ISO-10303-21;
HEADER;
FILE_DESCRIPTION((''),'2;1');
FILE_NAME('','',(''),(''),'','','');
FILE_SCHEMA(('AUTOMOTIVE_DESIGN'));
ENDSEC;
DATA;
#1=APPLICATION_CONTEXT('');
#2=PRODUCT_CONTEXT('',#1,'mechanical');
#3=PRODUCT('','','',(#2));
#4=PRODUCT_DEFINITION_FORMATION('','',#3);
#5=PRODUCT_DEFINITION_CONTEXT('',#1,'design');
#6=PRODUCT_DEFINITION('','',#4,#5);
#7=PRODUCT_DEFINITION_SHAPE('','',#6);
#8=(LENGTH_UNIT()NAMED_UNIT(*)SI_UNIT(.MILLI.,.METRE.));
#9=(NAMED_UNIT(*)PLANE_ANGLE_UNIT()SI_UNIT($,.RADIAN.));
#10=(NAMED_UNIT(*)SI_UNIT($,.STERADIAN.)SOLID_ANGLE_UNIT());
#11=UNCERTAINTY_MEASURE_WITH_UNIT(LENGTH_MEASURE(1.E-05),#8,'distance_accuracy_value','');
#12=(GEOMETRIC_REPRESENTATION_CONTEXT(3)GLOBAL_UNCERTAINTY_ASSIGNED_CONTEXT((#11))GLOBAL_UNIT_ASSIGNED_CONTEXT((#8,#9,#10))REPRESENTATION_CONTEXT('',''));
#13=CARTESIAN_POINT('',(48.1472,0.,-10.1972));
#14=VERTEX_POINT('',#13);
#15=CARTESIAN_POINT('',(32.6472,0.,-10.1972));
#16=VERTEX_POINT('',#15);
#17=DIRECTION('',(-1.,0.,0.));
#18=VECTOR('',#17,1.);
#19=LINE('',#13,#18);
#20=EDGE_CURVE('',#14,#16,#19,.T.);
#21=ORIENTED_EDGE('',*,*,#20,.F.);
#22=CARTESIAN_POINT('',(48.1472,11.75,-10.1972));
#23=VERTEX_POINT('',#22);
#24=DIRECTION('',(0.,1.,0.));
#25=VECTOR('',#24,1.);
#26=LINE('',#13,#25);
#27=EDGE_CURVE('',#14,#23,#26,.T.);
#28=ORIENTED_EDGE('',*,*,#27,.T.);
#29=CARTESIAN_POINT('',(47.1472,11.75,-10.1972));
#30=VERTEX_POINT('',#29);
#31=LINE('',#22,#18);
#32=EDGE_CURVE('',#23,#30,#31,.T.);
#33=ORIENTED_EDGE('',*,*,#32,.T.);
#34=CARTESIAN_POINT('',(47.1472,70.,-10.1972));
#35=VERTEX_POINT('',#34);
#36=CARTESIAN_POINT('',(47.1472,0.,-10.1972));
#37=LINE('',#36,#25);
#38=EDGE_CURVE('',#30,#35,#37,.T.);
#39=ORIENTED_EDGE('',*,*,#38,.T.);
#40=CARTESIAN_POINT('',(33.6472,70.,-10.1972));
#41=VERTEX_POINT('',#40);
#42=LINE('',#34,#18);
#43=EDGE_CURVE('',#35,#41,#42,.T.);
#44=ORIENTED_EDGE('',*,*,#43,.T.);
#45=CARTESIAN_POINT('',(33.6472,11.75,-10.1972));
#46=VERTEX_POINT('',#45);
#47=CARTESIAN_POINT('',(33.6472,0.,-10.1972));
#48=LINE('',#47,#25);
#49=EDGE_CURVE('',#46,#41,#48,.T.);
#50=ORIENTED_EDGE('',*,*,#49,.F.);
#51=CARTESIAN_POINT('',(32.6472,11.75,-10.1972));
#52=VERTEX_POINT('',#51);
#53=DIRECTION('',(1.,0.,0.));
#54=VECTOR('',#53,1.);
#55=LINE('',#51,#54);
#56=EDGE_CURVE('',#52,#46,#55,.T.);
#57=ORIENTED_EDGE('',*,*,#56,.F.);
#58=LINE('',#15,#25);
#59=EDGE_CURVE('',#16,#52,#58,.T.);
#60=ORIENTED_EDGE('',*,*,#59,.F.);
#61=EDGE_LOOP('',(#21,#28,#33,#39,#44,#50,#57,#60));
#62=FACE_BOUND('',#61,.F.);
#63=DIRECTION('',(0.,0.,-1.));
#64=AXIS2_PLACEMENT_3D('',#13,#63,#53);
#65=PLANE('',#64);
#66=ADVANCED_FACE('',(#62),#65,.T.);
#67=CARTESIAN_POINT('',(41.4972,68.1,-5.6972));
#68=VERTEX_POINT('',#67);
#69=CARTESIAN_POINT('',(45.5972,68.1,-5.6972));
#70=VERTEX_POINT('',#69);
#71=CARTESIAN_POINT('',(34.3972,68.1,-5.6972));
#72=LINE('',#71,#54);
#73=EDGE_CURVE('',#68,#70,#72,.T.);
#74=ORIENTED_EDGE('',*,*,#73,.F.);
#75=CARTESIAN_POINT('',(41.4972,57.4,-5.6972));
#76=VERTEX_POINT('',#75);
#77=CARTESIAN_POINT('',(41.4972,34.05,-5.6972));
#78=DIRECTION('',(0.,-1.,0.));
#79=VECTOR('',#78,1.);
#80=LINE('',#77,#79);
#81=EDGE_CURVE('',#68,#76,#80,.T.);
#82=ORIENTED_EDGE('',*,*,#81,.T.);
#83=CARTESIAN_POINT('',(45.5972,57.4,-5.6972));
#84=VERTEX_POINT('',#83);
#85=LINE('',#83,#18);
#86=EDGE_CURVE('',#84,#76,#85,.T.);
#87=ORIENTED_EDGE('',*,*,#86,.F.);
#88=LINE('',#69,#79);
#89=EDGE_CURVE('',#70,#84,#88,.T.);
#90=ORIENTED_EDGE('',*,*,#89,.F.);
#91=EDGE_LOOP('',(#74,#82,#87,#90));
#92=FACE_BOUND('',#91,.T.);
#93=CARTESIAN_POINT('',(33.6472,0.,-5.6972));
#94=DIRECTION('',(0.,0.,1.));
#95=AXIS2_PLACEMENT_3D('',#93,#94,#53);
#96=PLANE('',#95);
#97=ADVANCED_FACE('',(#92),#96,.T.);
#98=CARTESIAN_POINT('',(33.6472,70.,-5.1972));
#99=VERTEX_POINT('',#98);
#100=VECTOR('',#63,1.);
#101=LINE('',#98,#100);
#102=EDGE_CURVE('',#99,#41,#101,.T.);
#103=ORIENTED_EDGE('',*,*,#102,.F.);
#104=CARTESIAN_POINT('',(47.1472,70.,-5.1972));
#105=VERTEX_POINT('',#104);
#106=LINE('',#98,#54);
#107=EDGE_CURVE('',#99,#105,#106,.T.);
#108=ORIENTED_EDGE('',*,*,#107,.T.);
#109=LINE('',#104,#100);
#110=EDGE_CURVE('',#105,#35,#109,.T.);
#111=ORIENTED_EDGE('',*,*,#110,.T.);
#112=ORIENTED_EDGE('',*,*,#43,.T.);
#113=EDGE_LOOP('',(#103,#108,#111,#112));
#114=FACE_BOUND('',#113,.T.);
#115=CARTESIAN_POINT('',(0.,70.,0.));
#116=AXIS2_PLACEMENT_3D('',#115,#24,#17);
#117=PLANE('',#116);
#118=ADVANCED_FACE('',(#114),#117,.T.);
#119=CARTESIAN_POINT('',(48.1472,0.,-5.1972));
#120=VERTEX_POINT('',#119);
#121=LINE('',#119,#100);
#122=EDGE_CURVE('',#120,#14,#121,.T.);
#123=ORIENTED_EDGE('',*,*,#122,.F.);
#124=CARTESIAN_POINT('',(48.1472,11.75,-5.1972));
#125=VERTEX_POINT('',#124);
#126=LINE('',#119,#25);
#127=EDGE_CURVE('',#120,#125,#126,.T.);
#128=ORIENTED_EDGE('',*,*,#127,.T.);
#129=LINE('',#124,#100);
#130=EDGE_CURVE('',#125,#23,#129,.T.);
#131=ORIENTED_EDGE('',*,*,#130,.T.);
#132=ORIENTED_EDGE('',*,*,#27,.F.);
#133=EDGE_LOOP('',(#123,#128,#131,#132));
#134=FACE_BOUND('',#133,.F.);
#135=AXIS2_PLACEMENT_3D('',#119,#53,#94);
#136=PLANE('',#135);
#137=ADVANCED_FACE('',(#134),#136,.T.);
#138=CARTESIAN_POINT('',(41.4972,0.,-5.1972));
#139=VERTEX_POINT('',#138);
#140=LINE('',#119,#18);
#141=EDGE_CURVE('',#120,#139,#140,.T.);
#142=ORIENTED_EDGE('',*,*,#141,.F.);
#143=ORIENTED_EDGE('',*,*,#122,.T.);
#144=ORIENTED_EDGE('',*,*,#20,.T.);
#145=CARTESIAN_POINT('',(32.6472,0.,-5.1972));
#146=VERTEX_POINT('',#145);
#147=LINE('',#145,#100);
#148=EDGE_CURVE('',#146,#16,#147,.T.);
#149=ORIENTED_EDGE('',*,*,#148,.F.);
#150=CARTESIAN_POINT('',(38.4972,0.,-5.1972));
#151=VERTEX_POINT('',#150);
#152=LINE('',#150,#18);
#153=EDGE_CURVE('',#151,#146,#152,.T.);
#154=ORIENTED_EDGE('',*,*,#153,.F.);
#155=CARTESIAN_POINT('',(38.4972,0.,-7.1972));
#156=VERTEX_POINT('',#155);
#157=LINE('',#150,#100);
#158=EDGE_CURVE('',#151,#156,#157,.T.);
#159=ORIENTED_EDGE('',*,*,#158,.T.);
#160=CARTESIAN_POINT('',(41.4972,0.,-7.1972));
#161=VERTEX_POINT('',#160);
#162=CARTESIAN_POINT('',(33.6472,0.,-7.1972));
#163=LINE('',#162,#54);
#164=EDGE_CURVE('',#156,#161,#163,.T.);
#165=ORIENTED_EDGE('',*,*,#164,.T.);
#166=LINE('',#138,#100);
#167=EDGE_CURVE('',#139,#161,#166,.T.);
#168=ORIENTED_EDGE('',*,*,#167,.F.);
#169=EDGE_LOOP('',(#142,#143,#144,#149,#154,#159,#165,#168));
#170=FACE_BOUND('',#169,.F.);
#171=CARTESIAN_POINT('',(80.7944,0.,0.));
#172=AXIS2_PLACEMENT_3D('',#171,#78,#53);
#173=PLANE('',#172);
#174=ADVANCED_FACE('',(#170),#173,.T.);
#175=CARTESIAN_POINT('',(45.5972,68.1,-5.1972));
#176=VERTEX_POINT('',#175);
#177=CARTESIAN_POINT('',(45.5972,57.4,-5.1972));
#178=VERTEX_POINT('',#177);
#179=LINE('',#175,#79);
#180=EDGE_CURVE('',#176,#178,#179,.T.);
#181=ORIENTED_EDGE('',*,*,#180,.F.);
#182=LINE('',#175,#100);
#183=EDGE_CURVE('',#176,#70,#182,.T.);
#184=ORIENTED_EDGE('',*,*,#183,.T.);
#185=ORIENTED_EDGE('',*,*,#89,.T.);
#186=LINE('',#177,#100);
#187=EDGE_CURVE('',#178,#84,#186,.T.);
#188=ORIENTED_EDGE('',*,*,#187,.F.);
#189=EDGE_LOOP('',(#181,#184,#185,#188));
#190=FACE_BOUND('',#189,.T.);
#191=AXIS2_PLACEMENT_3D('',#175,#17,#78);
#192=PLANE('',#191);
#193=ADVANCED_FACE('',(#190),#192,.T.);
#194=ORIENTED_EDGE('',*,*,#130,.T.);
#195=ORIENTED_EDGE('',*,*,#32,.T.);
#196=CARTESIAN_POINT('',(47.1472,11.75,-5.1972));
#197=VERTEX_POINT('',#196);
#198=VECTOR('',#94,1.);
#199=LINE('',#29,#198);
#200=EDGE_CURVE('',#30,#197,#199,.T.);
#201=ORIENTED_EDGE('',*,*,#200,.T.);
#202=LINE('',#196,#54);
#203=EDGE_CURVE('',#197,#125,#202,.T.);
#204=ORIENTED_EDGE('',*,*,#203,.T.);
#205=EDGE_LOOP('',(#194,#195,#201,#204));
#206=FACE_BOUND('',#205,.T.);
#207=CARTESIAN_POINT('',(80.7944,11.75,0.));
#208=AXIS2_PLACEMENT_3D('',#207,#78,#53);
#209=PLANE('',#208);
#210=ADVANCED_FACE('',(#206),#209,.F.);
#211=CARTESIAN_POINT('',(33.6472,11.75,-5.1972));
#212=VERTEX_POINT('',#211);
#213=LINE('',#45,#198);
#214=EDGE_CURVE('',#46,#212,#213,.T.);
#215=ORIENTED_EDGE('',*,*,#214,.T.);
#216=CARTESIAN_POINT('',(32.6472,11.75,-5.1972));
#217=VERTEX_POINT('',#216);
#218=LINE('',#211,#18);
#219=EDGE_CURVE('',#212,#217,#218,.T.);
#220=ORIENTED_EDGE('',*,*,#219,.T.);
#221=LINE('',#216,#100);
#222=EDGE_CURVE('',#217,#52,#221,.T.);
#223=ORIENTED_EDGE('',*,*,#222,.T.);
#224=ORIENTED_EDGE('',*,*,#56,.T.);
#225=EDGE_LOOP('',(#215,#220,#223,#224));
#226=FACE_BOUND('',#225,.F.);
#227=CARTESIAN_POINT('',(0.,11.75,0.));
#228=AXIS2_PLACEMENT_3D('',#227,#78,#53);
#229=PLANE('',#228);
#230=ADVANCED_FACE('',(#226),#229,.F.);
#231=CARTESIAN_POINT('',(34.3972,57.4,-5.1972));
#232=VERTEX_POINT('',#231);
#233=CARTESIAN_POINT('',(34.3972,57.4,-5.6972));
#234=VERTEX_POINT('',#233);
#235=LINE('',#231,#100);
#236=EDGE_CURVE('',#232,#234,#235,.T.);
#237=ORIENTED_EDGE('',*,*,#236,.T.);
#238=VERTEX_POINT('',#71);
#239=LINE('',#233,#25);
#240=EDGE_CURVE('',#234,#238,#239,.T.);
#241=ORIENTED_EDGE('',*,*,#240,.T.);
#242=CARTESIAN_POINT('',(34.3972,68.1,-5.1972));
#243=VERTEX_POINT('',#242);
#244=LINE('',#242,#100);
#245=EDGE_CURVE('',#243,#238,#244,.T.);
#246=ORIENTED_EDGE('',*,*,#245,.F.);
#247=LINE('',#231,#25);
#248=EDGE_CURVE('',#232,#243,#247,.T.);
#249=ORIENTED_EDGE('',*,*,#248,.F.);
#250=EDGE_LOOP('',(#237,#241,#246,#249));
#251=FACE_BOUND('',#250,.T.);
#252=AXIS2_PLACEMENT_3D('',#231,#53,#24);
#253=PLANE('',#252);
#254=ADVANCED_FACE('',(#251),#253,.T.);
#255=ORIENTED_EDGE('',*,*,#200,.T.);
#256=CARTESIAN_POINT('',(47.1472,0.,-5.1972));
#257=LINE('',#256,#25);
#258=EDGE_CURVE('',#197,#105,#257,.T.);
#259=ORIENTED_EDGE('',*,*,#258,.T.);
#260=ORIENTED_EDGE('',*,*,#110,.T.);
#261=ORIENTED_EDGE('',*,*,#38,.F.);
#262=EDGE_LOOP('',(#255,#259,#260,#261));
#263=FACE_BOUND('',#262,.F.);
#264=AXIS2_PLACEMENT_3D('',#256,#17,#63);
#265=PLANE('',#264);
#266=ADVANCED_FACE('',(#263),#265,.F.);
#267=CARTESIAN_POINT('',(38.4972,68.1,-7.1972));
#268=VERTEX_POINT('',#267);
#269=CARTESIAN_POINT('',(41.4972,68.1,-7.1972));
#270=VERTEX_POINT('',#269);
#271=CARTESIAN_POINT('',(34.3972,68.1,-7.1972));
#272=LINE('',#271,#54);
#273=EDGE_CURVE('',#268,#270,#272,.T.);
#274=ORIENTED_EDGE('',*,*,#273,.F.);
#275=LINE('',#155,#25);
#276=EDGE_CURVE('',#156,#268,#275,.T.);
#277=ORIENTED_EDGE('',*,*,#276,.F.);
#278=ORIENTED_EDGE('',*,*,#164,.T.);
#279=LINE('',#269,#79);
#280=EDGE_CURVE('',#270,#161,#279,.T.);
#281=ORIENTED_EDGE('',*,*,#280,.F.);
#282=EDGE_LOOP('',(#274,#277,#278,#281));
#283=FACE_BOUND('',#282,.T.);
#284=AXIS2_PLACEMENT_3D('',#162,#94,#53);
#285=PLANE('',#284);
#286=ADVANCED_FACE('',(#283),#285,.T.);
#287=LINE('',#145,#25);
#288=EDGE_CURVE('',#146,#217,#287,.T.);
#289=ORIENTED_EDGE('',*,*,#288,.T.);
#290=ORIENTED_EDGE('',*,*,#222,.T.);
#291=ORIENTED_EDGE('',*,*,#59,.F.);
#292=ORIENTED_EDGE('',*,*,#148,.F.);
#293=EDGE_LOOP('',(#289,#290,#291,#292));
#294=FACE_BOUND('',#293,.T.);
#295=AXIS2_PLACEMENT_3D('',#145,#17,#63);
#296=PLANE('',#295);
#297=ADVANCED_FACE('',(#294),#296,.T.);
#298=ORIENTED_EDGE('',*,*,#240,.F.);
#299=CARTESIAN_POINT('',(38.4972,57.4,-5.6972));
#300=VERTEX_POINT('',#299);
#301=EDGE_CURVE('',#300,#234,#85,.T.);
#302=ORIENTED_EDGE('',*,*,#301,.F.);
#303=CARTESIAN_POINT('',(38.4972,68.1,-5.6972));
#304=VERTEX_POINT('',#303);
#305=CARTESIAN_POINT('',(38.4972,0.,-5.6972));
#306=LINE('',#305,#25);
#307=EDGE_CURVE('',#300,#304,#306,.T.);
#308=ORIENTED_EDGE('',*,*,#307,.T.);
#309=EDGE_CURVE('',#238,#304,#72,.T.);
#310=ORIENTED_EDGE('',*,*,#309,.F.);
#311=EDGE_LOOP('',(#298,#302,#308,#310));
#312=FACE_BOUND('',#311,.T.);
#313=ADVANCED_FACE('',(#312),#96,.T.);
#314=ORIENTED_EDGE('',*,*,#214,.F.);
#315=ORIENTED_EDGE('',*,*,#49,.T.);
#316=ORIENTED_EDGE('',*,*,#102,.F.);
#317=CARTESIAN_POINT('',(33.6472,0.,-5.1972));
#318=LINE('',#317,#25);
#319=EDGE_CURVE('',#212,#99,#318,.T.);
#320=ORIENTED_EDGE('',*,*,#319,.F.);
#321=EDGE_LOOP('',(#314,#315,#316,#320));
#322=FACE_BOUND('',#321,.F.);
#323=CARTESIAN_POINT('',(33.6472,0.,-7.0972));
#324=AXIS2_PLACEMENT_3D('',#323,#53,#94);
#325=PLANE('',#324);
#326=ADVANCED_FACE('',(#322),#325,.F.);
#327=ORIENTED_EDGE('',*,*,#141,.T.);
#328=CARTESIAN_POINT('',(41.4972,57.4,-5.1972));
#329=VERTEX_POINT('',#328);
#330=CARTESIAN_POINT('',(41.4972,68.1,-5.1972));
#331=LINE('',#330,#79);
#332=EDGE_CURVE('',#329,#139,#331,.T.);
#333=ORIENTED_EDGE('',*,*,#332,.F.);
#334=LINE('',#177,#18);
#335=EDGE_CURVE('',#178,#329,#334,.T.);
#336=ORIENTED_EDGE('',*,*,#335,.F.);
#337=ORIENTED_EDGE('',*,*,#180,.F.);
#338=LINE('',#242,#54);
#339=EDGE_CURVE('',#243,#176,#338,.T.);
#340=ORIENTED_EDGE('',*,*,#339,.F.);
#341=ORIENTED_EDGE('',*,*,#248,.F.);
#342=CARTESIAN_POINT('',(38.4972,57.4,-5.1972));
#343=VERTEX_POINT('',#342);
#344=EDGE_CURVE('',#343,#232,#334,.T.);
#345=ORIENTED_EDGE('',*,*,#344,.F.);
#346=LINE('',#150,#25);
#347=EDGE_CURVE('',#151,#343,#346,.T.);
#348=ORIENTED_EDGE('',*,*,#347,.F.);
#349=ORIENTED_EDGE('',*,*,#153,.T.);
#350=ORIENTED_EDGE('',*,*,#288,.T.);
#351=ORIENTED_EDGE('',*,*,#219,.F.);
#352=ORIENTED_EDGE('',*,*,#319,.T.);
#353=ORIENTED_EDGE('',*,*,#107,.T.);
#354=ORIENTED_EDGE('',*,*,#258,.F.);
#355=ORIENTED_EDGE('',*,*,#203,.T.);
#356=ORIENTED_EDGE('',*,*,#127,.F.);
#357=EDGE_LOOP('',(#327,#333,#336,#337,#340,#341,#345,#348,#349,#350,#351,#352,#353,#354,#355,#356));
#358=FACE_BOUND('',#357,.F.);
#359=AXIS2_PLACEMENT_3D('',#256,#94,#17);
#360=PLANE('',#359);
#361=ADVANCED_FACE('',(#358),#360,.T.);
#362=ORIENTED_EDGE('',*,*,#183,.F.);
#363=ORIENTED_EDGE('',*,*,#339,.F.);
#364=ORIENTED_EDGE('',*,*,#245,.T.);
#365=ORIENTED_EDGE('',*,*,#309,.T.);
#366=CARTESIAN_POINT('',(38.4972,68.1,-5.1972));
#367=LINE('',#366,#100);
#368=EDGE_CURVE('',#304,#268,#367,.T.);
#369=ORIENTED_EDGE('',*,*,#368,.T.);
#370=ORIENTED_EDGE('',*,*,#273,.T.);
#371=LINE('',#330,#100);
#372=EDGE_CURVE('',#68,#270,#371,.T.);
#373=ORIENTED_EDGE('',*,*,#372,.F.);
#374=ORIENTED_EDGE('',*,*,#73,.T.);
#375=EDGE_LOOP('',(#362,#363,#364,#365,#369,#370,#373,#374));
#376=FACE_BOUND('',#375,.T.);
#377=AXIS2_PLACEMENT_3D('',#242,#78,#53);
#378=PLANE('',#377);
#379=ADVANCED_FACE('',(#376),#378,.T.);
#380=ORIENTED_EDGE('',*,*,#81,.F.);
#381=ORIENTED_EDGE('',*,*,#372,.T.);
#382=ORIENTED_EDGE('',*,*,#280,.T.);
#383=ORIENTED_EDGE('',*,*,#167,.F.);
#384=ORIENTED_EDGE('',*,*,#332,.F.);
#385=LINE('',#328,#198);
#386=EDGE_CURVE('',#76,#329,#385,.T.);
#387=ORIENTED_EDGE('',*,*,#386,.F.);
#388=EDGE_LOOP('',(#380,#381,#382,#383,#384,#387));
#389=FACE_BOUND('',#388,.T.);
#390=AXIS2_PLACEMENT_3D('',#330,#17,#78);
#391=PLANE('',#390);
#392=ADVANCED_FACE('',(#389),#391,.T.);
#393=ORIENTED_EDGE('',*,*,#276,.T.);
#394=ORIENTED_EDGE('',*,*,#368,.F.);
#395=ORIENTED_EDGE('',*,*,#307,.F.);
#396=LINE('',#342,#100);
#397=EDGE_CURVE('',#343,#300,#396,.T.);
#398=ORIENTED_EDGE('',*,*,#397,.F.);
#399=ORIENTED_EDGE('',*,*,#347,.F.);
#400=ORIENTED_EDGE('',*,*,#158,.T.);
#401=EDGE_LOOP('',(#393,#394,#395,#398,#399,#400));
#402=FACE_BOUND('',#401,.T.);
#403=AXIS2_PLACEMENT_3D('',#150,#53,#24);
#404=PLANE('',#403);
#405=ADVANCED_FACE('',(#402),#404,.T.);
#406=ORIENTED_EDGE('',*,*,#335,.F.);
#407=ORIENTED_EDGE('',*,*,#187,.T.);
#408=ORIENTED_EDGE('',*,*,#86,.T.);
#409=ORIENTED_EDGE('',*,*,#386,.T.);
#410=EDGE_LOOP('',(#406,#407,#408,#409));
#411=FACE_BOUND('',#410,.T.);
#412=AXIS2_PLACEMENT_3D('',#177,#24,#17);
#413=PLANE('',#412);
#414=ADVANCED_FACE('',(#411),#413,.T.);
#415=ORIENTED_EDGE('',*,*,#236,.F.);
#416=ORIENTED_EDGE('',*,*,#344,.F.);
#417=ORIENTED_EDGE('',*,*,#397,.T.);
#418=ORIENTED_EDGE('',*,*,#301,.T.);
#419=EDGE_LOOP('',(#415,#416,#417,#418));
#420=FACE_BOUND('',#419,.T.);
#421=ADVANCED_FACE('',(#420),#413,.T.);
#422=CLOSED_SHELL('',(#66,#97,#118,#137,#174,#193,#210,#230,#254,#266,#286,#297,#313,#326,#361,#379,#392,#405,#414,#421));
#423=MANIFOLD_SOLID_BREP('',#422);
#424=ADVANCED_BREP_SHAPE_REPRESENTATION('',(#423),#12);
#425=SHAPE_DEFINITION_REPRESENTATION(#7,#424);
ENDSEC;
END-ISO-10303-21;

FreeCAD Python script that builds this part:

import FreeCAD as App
import Part
import Sketcher
from FreeCAD import Vector

doc = App.newDocument("Part")
params = doc.addObject("Spreadsheet::Sheet", "Params")
for row, (alias, value) in enumerate([
    ("sketch1_height", "5 mm"),
    ("sketch1_width", "13.5 mm"),
    ("pad1_length", "70 mm"),
    ("sketch2_width", "11.2 mm"),
    ("sketch2_height", "10.7 mm"),
    ("pocket1_length", "0.5 mm"),
    ("sketch3_width", "3 mm"),
    ("sketch3_height", "68.1 mm"),
    ("pocket2_length", "2 mm"),
    ("sketch4_width", "1 mm"),
    ("sketch4_height", "5 mm"),
    ("pad2_length", "11.75 mm"),
], start=1):
    params.set(f"A{row}", alias)
    params.set(f"B{row}", "=" + value)
    params.setAlias(f"B{row}", alias)

body = doc.addObject("PartDesign::Body", "Body")

sketch1 = body.newObject("Sketcher::SketchObject", "Sketch")
sketch1.AttachmentSupport = (doc.getObject("XZ_Plane"), [""])
sketch1.MapMode = "FlatFace"
sketch1.addGeometry([
    Part.LineSegment(Vector(33.6472, -10.1972, 0), Vector(33.6472, -5.1972, 0)),
    Part.LineSegment(Vector(33.6472, -5.1972, 0), Vector(47.1472, -5.1972, 0)),
    Part.LineSegment(Vector(47.1472, -5.1972, 0), Vector(47.1472, -10.1972, 0)),
    Part.LineSegment(Vector(47.1472, -10.1972, 0), Vector(33.6472, -10.1972, 0)),
], False)
sketch1.addConstraint([
    Sketcher.Constraint("Coincident", 0, 2, 1, 1),
    Sketcher.Constraint("Coincident", 1, 2, 2, 1),
    Sketcher.Constraint("Coincident", 2, 2, 3, 1),
    Sketcher.Constraint("Coincident", 3, 2, 0, 1),
    Sketcher.Constraint("Vertical", 0),
    Sketcher.Constraint("Horizontal", 1),
    Sketcher.Constraint("Vertical", 2),
    Sketcher.Constraint("Horizontal", 3),
    Sketcher.Constraint("DistanceY", 0, 1, 0, 2, 5.0),
    Sketcher.Constraint("DistanceX", 1, 1, 1, 2, 13.5),
    Sketcher.Constraint("DistanceX", -1, 1, 0, 2, 33.6472),
    Sketcher.Constraint("DistanceY", 0, 2, -1, 1, 5.1972),
])
sketch1.setExpression("Constraints[8]", "Params.sketch1_height")
sketch1.setExpression("Constraints[9]", "Params.sketch1_width")
pad1 = body.newObject("PartDesign::Pad", "Pad")
pad1.Profile = sketch1
pad1.setExpression("Length", "Params.pad1_length")
pad1.Reversed = True

sketch2 = body.newObject("Sketcher::SketchObject", "Sketch001")
sketch2.AttachmentSupport = (doc.getObject("XY_Plane"), [""])
sketch2.MapMode = "FlatFace"
sketch2.AttachmentOffset = App.Placement(Vector(0, 0, -5.1972), App.Rotation())
sketch2.addGeometry([
    Part.LineSegment(Vector(45.5972, 68.1, 0), Vector(34.3972, 68.1, 0)),
    Part.LineSegment(Vector(34.3972, 68.1, 0), Vector(34.3972, 57.4, 0)),
    Part.LineSegment(Vector(34.3972, 57.4, 0), Vector(45.5972, 57.4, 0)),
    Part.LineSegment(Vector(45.5972, 57.4, 0), Vector(45.5972, 68.1, 0)),
], False)
sketch2.addConstraint([
    Sketcher.Constraint("Coincident", 0, 2, 1, 1),
    Sketcher.Constraint("Coincident", 1, 2, 2, 1),
    Sketcher.Constraint("Coincident", 2, 2, 3, 1),
    Sketcher.Constraint("Coincident", 3, 2, 0, 1),
    Sketcher.Constraint("Horizontal", 0),
    Sketcher.Constraint("Vertical", 1),
    Sketcher.Constraint("Horizontal", 2),
    Sketcher.Constraint("Vertical", 3),
    Sketcher.Constraint("DistanceX", 0, 2, 0, 1, 11.2),
    Sketcher.Constraint("DistanceY", 1, 2, 1, 1, 10.7),
    Sketcher.Constraint("DistanceY", -1, 1, 0, 2, 68.1),
    Sketcher.Constraint("DistanceX", -1, 1, 0, 2, 34.3972),
])
sketch2.setExpression("Constraints[8]", "Params.sketch2_width")
sketch2.setExpression("Constraints[9]", "Params.sketch2_height")
pocket1 = body.newObject("PartDesign::Pocket", "Pocket")
pocket1.Profile = sketch2
pocket1.setExpression("Length", "Params.pocket1_length")

sketch3 = body.newObject("Sketcher::SketchObject", "Sketch002")
sketch3.AttachmentSupport = (doc.getObject("XY_Plane"), [""])
sketch3.MapMode = "FlatFace"
sketch3.AttachmentOffset = App.Placement(Vector(0, 0, -5.1972), App.Rotation())
sketch3.addGeometry([
    Part.LineSegment(Vector(41.4972, 68.1, 0), Vector(38.4972, 68.1, 0)),
    Part.LineSegment(Vector(38.4972, 68.1, 0), Vector(38.4972, 0, 0)),
    Part.LineSegment(Vector(38.4972, 0, 0), Vector(41.4972, 0, 0)),
    Part.LineSegment(Vector(41.4972, 0, 0), Vector(41.4972, 68.1, 0)),
], False)
sketch3.addConstraint([
    Sketcher.Constraint("Coincident", 0, 2, 1, 1),
    Sketcher.Constraint("Coincident", 1, 2, 2, 1),
    Sketcher.Constraint("Coincident", 2, 2, 3, 1),
    Sketcher.Constraint("Coincident", 3, 2, 0, 1),
    Sketcher.Constraint("Horizontal", 0),
    Sketcher.Constraint("Vertical", 1),
    Sketcher.Constraint("Horizontal", 2),
    Sketcher.Constraint("Vertical", 3),
    Sketcher.Constraint("PointOnObject", 1, 2, -1),
    Sketcher.Constraint("DistanceX", 0, 2, 0, 1, 3.0),
    Sketcher.Constraint("DistanceY", 1, 2, 1, 1, 68.1),
    Sketcher.Constraint("DistanceX", -1, 1, 0, 2, 38.4972),
])
sketch3.setExpression("Constraints[9]", "Params.sketch3_width")
sketch3.setExpression("Constraints[10]", "Params.sketch3_height")
pocket2 = body.newObject("PartDesign::Pocket", "Pocket001")
pocket2.Profile = sketch3
pocket2.setExpression("Length", "Params.pocket2_length")

sketch4 = body.newObject("Sketcher::SketchObject", "Sketch003")
sketch4.AttachmentSupport = (doc.getObject("XZ_Plane"), [""])
sketch4.MapMode = "FlatFace"
sketch4.addGeometry([
    Part.LineSegment(Vector(33.6472, -10.1972, 0), Vector(33.6472, -5.1972, 0)),
    Part.LineSegment(Vector(33.6472, -5.1972, 0), Vector(32.6472, -5.1972, 0)),
    Part.LineSegment(Vector(32.6472, -5.1972, 0), Vector(32.6472, -10.1972, 0)),
    Part.LineSegment(Vector(32.6472, -10.1972, 0), Vector(33.6472, -10.1972, 0)),
], False)
sketch4.addConstraint([
    Sketcher.Constraint("Coincident", 0, 2, 1, 1),
    Sketcher.Constraint("Coincident", 1, 2, 2, 1),
    Sketcher.Constraint("Coincident", 2, 2, 3, 1),
    Sketcher.Constraint("Coincident", 3, 2, 0, 1),
    Sketcher.Constraint("Vertical", 0),
    Sketcher.Constraint("Horizontal", 1),
    Sketcher.Constraint("Vertical", 2),
    Sketcher.Constraint("Horizontal", 3),
    Sketcher.Constraint("DistanceX", 1, 2, 1, 1, 1.0),
    Sketcher.Constraint("DistanceY", 0, 1, 0, 2, 5.0),
    Sketcher.Constraint("DistanceX", -1, 1, 0, 2, 33.6472),
    Sketcher.Constraint("DistanceY", 0, 2, -1, 1, 5.1972),
])
sketch4.setExpression("Constraints[8]", "Params.sketch4_width")
sketch4.setExpression("Constraints[9]", "Params.sketch4_height")
pad2 = body.newObject("PartDesign::Pad", "Pad001")
pad2.Profile = sketch4
pad2.setExpression("Length", "Params.pad2_length")
pad2.Reversed = True
doc.recompute()

datumplane = body.newObject("PartDesign::Plane", "DatumPlane")
datumplane.AttachmentSupport = (doc.getObject("YZ_Plane"), [""])
datumplane.MapMode = "FlatFace"
datumplane.AttachmentOffset = App.Placement(Vector(0, 0, 40.3972), App.Rotation())
mirrored = body.newObject("PartDesign::Mirrored", "Mirrored")
mirrored.Originals = [pad2]
mirrored.MirrorPlane = (datumplane, [""])
body.Tip = mirrored

doc.recompute()
